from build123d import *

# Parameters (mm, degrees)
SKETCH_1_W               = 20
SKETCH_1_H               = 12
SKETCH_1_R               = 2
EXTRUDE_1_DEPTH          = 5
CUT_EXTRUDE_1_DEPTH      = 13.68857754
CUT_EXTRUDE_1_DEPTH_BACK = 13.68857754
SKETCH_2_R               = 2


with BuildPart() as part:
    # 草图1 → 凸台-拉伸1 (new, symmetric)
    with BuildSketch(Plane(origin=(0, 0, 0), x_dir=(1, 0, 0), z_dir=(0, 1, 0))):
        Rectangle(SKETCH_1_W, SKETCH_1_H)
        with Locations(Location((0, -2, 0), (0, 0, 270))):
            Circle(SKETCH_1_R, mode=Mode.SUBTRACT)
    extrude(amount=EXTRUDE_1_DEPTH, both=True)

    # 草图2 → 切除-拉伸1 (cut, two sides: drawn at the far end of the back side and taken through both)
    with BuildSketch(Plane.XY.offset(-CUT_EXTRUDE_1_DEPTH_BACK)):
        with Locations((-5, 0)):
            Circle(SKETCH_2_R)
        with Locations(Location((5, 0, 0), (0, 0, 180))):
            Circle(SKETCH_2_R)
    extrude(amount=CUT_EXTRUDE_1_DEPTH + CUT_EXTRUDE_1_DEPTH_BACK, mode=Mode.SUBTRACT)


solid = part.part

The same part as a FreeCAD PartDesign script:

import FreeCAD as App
import Part
import Sketcher
Q = App.Units.Quantity

doc = App.newDocument("Part")
params = doc.addObject("Spreadsheet::Sheet", "Params")
for row, (alias, value) in enumerate([
    ("sketch1_diameter", "4 mm"),
    ("sketch1_width", "20 mm"),
    ("sketch1_height", "12 mm"),
    ("pad1_length", "10 mm"),
    ("sketch2_diameter", "4 mm"),
], start=1):
    params.set(f"A{row}", alias)
    params.set(f"B{row}", "=" + value)
    params.setAlias(f"B{row}", alias)

body = doc.addObject("PartDesign::Body", "Body")

sketch1 = body.newObject("Sketcher::SketchObject", "Sketch")
sketch1.AttachmentSupport = (doc.getObject("XZ_Plane"), [""])
sketch1.MapMode = "FlatFace"
sketch1.addGeometry([
    Part.LineSegment(App.Vector(-10, -6, 0), App.Vector(-10, 6, 0)),
    Part.LineSegment(App.Vector(-10, 6, 0), App.Vector(10, 6, 0)),
    Part.LineSegment(App.Vector(10, 6, 0), App.Vector(10, -6, 0)),
    Part.LineSegment(App.Vector(10, -6, 0), App.Vector(-10, -6, 0)),
    Part.Circle(App.Vector(0, 2, 0), App.Vector(0, 0, 1), 2),
], False)
sketch1.addConstraint([
    Sketcher.Constraint("Coincident", 0, 2, 1, 1),
    Sketcher.Constraint("Coincident", 1, 2, 2, 1),
    Sketcher.Constraint("Coincident", 2, 2, 3, 1),
    Sketcher.Constraint("Coincident", 3, 2, 0, 1),
    Sketcher.Constraint("Vertical", 0),
    Sketcher.Constraint("Horizontal", 1),
    Sketcher.Constraint("Vertical", 2),
    Sketcher.Constraint("Horizontal", 3),
    Sketcher.Constraint("Symmetric", 0, 2, 2, 2, -1, 1),
    Sketcher.Constraint("PointOnObject", 4, 3, -2),
    Sketcher.Constraint("Diameter", 4, Q("4 mm")),
    Sketcher.Constraint("DistanceX", 1, 1, 1, 2, Q("20 mm")),
    Sketcher.Constraint("DistanceY", 0, 1, 0, 2, Q("12 mm")),
    Sketcher.Constraint("DistanceY", -1, 1, 4, 3, Q("2 mm")),
])
sketch1.setExpression("Constraints[10]", "Params.sketch1_diameter")
sketch1.setExpression("Constraints[11]", "Params.sketch1_width")
sketch1.setExpression("Constraints[12]", "Params.sketch1_height")
pad1 = body.newObject("PartDesign::Pad", "Pad")
pad1.Profile = sketch1
pad1.setExpression("Length", "Params.pad1_length")
pad1.Midplane = True

sketch2 = body.newObject("Sketcher::SketchObject", "Sketch001")
sketch2.AttachmentSupport = (doc.getObject("XY_Plane"), [""])
sketch2.MapMode = "FlatFace"
sketch2.addGeometry([
    Part.Circle(App.Vector(-5, 0, 0), App.Vector(0, 0, 1), 2),
    Part.Circle(App.Vector(5, 0, 0), App.Vector(0, 0, 1), 2),
], False)
sketch2.addConstraint([
    Sketcher.Constraint("Equal", 0, 1),
    Sketcher.Constraint("Symmetric", 0, 3, 1, 3, -1, 1),
    Sketcher.Constraint("PointOnObject", 0, 3, -1),
    Sketcher.Constraint("Diameter", 0, Q("4 mm")),
    Sketcher.Constraint("DistanceX", 0, 3, -1, 1, Q("5 mm")),
])
sketch2.setExpression("Constraints[3]", "Params.sketch2_diameter")
pocket1 = body.newObject("PartDesign::Pocket", "Pocket")
pocket1.Profile = sketch2
pocket1.Type = "ThroughAll"
pocket1.Midplane = True

doc.recompute()
